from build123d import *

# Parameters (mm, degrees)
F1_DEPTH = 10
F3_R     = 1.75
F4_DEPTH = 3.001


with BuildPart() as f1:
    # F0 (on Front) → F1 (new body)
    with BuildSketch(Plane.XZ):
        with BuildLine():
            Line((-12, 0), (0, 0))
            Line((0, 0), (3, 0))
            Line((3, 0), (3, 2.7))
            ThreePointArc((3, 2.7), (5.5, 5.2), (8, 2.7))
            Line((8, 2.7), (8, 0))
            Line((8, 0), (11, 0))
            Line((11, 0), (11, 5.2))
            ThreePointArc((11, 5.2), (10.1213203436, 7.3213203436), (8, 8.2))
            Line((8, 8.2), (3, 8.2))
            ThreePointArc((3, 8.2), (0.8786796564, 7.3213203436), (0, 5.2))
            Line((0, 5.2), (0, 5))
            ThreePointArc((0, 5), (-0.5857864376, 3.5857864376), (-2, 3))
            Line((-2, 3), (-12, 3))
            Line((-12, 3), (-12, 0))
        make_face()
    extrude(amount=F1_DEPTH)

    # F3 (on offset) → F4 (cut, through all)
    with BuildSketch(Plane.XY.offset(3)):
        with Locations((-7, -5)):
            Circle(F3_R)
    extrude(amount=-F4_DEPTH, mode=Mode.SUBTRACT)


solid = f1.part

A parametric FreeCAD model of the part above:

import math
import FreeCAD as App
import Part
import Sketcher

V = App.Vector

doc = App.newDocument("Part")
body = doc.addObject("PartDesign::Body", "Body")

# Sketch on XZ plane
sketch1 = doc.addObject("Sketcher::SketchObject", "Sketch")
body.addObject(sketch1)
sketch1.AttachmentSupport = (doc.XZ_Plane, [""])
sketch1.MapMode = "FlatFace"
sketch1.addGeometry([
    Part.LineSegment(V(-12, 0, 0), V(3, 0, 0)),  # 0
    Part.LineSegment(V(3, 0, 0), V(3, 2.7, 0)),  # 1
    Part.ArcOfCircle(Part.Circle(V(5.5, 2.7, 0), V(0, 0, 1), 2.5), math.radians(0), math.radians(180)),  # 2
    Part.LineSegment(V(8, 2.7, 0), V(8, 0, 0)),  # 3
    Part.LineSegment(V(8, 0, 0), V(11, 0, 0)),  # 4
    Part.LineSegment(V(11, 0, 0), V(11, 5.2, 0)),  # 5
    Part.ArcOfCircle(Part.Circle(V(8, 5.2, 0), V(0, 0, 1), 3), math.radians(0), math.radians(90)),  # 6
    Part.LineSegment(V(8, 8.2, 0), V(3, 8.2, 0)),  # 7
    Part.ArcOfCircle(Part.Circle(V(3, 5.2, 0), V(0, 0, 1), 3), math.radians(90), math.radians(180)),  # 8
    Part.LineSegment(V(0, 5.2, 0), V(0, 5, 0)),  # 9
    Part.ArcOfCircle(Part.Circle(V(-2, 5, 0), V(0, 0, 1), 2), math.radians(-90), math.radians(0)),  # 10
    Part.LineSegment(V(-2, 3, 0), V(-12, 3, 0)),  # 11
    Part.LineSegment(V(-12, 3, 0), V(-12, 0, 0)),  # 12
], False)
sketch1.addConstraint([
    Sketcher.Constraint("Coincident", 0, 2, 1, 1),
    Sketcher.Constraint("Tangent", 1, 2, 2, 2),
    Sketcher.Constraint("Tangent", 2, 1, 3, 1),
    Sketcher.Constraint("Coincident", 3, 2, 4, 1),
    Sketcher.Constraint("Coincident", 4, 2, 5, 1),
    Sketcher.Constraint("Tangent", 5, 2, 6, 1),
    Sketcher.Constraint("Tangent", 6, 2, 7, 1),
    Sketcher.Constraint("Tangent", 7, 2, 8, 1),
    Sketcher.Constraint("Tangent", 8, 2, 9, 1),
    Sketcher.Constraint("Tangent", 9, 2, 10, 2),
    Sketcher.Constraint("Tangent", 10, 1, 11, 1),
    Sketcher.Constraint("Coincident", 11, 2, 12, 1),
    Sketcher.Constraint("Coincident", 12, 2, 0, 1),
    Sketcher.Constraint("Horizontal", 0),
    Sketcher.Constraint("Vertical", 1),
    Sketcher.Constraint("Vertical", 3),
    Sketcher.Constraint("Horizontal", 4),
    Sketcher.Constraint("Vertical", 5),
    Sketcher.Constraint("Horizontal", 7),
    Sketcher.Constraint("Vertical", 9),
    Sketcher.Constraint("Horizontal", 11),
    Sketcher.Constraint("Vertical", 12),
    Sketcher.Constraint("Equal", 6, 8),
    Sketcher.Constraint("PointOnObject", 0, 2, -1),
    Sketcher.Constraint("PointOnObject", 3, 2, -1),
    Sketcher.Constraint("PointOnObject", 8, 2, -2),
    Sketcher.Constraint("Vertical", 8, 3, 0, 2),
    Sketcher.Constraint("Vertical", 6, 3, 2, 1),
    Sketcher.Constraint("Equal", 4, 12),
    Sketcher.Constraint("Radius", 6, 3.0),
    Sketcher.Constraint("Radius", 10, 2.0),
    Sketcher.Constraint("Radius", 2, 2.5),
    Sketcher.Constraint("DistanceX", 0, 1, 0, 2, 15.0),
    Sketcher.Constraint("DistanceY", 1, 1, 1, 2, 2.7),
    Sketcher.Constraint("DistanceY", 5, 1, 5, 2, 5.2),
])
pad1 = doc.addObject("PartDesign::Pad", "Pad")
body.addObject(pad1)
pad1.Profile = sketch1
pad1.Length = 10

# Sketch on XY plane
sketch2 = doc.addObject("Sketcher::SketchObject", "Sketch001")
body.addObject(sketch2)
sketch2.AttachmentSupport = (doc.XY_Plane, [""])
sketch2.MapMode = "FlatFace"
sketch2.AttachmentOffset = App.Placement(V(0, 0, 3), App.Rotation())
sketch2.addGeometry(Part.Circle(V(-7, -5, 0), V(0, 0, 1), 1.75), False)
sketch2.addConstraint([
    Sketcher.Constraint("Diameter", 0, 3.5),
    Sketcher.Constraint("DistanceX", 0, 3, -1, 1, 7.0),
    Sketcher.Constraint("DistanceY", 0, 3, -1, 1, 5.0),
])
pocket1 = doc.addObject("PartDesign::Pocket", "Pocket")
body.addObject(pocket1)
pocket1.Profile = sketch2
pocket1.Type = "ThroughAll"

doc.recompute()
